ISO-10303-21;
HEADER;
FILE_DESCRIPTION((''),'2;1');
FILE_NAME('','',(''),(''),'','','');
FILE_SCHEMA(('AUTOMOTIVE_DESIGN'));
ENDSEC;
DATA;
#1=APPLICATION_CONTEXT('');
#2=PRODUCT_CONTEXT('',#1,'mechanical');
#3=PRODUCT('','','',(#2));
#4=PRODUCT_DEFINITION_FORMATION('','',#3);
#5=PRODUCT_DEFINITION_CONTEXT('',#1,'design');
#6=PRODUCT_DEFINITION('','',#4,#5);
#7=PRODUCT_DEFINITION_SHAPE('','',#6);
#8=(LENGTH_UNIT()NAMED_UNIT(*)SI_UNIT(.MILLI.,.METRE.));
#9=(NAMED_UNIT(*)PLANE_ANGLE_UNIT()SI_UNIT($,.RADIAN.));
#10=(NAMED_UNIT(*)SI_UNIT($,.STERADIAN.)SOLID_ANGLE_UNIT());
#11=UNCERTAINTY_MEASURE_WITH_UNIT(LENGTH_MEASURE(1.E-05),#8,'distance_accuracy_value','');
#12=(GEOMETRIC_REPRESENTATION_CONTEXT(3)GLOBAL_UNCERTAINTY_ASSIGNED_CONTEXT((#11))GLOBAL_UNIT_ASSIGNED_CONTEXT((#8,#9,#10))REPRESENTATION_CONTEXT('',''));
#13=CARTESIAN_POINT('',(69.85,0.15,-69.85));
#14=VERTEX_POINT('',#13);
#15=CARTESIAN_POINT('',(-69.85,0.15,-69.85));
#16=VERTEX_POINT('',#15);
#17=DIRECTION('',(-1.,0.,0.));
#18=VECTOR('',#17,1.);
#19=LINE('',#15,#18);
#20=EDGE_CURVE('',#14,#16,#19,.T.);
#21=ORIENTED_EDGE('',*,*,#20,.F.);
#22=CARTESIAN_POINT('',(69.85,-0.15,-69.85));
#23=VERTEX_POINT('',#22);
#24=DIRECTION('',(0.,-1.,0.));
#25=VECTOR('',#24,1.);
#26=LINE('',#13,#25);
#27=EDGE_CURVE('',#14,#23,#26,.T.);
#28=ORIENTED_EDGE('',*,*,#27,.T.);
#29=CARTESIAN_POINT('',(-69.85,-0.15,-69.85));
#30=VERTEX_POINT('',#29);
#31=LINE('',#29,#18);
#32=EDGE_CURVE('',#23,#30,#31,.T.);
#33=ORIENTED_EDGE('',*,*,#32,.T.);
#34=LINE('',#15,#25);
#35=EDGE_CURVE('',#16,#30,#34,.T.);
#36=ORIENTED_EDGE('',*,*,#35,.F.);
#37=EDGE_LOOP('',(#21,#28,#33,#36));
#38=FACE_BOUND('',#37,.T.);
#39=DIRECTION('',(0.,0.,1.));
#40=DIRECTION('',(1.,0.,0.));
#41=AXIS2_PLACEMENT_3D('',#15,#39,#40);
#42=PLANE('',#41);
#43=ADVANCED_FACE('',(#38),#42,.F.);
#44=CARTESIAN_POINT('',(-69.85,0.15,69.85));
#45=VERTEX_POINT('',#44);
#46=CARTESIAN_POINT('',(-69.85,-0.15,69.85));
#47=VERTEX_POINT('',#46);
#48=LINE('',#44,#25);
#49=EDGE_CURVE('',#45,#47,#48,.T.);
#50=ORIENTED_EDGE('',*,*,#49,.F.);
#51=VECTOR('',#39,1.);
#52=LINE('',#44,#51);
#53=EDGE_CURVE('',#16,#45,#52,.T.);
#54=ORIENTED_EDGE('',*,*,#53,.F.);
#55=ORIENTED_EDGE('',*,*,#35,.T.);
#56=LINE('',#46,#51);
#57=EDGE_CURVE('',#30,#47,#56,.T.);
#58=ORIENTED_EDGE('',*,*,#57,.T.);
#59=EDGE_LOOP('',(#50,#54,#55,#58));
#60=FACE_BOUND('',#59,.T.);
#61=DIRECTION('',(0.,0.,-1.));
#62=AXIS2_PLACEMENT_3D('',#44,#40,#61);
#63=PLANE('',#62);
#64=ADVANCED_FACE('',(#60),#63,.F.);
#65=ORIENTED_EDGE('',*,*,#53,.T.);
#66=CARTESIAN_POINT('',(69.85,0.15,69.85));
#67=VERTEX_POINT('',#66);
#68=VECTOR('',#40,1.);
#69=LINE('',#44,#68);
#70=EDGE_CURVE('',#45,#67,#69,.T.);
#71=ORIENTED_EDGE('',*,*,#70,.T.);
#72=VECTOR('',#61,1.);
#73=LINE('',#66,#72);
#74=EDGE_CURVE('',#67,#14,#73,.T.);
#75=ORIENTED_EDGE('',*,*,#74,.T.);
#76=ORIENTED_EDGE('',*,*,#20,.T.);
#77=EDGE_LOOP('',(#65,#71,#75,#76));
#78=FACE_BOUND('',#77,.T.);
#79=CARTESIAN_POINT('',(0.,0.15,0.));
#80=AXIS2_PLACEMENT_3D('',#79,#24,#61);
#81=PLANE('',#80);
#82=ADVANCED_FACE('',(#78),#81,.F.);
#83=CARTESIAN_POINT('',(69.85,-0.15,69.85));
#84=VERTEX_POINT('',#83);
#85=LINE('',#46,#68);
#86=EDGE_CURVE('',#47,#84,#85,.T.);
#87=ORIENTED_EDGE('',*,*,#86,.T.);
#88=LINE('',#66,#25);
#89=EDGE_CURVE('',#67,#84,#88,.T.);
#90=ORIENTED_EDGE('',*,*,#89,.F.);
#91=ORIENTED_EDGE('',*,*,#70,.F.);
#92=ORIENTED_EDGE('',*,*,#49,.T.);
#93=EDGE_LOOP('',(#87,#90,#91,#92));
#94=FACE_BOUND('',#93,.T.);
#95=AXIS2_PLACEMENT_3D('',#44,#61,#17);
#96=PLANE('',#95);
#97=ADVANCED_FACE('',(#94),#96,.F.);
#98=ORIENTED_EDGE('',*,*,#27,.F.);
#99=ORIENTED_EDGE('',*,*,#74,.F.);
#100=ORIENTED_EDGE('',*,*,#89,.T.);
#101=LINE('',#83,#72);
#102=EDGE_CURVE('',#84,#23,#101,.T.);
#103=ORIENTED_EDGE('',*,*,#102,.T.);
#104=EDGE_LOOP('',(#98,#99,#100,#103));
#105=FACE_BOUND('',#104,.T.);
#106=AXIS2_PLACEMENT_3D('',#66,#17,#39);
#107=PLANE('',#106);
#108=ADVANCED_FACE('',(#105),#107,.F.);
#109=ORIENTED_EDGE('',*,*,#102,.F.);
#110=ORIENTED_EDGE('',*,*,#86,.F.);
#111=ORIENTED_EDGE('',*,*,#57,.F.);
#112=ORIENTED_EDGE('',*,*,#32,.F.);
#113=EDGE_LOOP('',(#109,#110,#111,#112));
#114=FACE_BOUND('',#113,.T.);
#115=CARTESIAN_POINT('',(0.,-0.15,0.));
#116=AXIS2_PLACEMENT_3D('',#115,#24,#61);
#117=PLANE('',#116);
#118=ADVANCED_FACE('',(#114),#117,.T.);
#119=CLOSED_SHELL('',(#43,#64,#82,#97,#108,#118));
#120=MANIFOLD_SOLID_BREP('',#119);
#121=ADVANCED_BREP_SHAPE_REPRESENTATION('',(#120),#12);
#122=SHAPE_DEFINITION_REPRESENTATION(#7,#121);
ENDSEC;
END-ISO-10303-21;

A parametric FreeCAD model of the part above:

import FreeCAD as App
import Part
import Sketcher
Q = App.Units.Quantity

doc = App.newDocument("Part")
body = doc.addObject("PartDesign::Body", "Body")

# Sketch on XZ plane
sketch1 = body.newObject("Sketcher::SketchObject", "Sketch")
sketch1.AttachmentSupport = (doc.getObject("XZ_Plane"), [""])
sketch1.MapMode = "FlatFace"
sketch1.addGeometry([
    Part.LineSegment(App.Vector(-70, -70, 0), App.Vector(-70, 70, 0)),
    Part.LineSegment(App.Vector(-70, 70, 0), App.Vector(70, 70, 0)),
    Part.LineSegment(App.Vector(70, 70, 0), App.Vector(70, -70, 0)),
    Part.LineSegment(App.Vector(70, -70, 0), App.Vector(-70, -70, 0)),
], False)
sketch1.addConstraint([
    Sketcher.Constraint("Coincident", 0, 2, 1, 1),
    Sketcher.Constraint("Coincident", 1, 2, 2, 1),
    Sketcher.Constraint("Coincident", 2, 2, 3, 1),
    Sketcher.Constraint("Coincident", 3, 2, 0, 1),
    Sketcher.Constraint("Vertical", 0),
    Sketcher.Constraint("Horizontal", 1),
    Sketcher.Constraint("Vertical", 2),
    Sketcher.Constraint("Horizontal", 3),
    Sketcher.Constraint("Symmetric", 0, 2, 2, 2, -1, 1),
    Sketcher.Constraint("Equal", 3, 0),
    Sketcher.Constraint("DistanceX", 1, 1, 1, 2, Q("5.5 in")),
])
pad1 = body.newObject("PartDesign::Pad", "Pad")
pad1.Profile = sketch1
pad1.Length = 0.3
pad1.Midplane = True

doc.recompute()
